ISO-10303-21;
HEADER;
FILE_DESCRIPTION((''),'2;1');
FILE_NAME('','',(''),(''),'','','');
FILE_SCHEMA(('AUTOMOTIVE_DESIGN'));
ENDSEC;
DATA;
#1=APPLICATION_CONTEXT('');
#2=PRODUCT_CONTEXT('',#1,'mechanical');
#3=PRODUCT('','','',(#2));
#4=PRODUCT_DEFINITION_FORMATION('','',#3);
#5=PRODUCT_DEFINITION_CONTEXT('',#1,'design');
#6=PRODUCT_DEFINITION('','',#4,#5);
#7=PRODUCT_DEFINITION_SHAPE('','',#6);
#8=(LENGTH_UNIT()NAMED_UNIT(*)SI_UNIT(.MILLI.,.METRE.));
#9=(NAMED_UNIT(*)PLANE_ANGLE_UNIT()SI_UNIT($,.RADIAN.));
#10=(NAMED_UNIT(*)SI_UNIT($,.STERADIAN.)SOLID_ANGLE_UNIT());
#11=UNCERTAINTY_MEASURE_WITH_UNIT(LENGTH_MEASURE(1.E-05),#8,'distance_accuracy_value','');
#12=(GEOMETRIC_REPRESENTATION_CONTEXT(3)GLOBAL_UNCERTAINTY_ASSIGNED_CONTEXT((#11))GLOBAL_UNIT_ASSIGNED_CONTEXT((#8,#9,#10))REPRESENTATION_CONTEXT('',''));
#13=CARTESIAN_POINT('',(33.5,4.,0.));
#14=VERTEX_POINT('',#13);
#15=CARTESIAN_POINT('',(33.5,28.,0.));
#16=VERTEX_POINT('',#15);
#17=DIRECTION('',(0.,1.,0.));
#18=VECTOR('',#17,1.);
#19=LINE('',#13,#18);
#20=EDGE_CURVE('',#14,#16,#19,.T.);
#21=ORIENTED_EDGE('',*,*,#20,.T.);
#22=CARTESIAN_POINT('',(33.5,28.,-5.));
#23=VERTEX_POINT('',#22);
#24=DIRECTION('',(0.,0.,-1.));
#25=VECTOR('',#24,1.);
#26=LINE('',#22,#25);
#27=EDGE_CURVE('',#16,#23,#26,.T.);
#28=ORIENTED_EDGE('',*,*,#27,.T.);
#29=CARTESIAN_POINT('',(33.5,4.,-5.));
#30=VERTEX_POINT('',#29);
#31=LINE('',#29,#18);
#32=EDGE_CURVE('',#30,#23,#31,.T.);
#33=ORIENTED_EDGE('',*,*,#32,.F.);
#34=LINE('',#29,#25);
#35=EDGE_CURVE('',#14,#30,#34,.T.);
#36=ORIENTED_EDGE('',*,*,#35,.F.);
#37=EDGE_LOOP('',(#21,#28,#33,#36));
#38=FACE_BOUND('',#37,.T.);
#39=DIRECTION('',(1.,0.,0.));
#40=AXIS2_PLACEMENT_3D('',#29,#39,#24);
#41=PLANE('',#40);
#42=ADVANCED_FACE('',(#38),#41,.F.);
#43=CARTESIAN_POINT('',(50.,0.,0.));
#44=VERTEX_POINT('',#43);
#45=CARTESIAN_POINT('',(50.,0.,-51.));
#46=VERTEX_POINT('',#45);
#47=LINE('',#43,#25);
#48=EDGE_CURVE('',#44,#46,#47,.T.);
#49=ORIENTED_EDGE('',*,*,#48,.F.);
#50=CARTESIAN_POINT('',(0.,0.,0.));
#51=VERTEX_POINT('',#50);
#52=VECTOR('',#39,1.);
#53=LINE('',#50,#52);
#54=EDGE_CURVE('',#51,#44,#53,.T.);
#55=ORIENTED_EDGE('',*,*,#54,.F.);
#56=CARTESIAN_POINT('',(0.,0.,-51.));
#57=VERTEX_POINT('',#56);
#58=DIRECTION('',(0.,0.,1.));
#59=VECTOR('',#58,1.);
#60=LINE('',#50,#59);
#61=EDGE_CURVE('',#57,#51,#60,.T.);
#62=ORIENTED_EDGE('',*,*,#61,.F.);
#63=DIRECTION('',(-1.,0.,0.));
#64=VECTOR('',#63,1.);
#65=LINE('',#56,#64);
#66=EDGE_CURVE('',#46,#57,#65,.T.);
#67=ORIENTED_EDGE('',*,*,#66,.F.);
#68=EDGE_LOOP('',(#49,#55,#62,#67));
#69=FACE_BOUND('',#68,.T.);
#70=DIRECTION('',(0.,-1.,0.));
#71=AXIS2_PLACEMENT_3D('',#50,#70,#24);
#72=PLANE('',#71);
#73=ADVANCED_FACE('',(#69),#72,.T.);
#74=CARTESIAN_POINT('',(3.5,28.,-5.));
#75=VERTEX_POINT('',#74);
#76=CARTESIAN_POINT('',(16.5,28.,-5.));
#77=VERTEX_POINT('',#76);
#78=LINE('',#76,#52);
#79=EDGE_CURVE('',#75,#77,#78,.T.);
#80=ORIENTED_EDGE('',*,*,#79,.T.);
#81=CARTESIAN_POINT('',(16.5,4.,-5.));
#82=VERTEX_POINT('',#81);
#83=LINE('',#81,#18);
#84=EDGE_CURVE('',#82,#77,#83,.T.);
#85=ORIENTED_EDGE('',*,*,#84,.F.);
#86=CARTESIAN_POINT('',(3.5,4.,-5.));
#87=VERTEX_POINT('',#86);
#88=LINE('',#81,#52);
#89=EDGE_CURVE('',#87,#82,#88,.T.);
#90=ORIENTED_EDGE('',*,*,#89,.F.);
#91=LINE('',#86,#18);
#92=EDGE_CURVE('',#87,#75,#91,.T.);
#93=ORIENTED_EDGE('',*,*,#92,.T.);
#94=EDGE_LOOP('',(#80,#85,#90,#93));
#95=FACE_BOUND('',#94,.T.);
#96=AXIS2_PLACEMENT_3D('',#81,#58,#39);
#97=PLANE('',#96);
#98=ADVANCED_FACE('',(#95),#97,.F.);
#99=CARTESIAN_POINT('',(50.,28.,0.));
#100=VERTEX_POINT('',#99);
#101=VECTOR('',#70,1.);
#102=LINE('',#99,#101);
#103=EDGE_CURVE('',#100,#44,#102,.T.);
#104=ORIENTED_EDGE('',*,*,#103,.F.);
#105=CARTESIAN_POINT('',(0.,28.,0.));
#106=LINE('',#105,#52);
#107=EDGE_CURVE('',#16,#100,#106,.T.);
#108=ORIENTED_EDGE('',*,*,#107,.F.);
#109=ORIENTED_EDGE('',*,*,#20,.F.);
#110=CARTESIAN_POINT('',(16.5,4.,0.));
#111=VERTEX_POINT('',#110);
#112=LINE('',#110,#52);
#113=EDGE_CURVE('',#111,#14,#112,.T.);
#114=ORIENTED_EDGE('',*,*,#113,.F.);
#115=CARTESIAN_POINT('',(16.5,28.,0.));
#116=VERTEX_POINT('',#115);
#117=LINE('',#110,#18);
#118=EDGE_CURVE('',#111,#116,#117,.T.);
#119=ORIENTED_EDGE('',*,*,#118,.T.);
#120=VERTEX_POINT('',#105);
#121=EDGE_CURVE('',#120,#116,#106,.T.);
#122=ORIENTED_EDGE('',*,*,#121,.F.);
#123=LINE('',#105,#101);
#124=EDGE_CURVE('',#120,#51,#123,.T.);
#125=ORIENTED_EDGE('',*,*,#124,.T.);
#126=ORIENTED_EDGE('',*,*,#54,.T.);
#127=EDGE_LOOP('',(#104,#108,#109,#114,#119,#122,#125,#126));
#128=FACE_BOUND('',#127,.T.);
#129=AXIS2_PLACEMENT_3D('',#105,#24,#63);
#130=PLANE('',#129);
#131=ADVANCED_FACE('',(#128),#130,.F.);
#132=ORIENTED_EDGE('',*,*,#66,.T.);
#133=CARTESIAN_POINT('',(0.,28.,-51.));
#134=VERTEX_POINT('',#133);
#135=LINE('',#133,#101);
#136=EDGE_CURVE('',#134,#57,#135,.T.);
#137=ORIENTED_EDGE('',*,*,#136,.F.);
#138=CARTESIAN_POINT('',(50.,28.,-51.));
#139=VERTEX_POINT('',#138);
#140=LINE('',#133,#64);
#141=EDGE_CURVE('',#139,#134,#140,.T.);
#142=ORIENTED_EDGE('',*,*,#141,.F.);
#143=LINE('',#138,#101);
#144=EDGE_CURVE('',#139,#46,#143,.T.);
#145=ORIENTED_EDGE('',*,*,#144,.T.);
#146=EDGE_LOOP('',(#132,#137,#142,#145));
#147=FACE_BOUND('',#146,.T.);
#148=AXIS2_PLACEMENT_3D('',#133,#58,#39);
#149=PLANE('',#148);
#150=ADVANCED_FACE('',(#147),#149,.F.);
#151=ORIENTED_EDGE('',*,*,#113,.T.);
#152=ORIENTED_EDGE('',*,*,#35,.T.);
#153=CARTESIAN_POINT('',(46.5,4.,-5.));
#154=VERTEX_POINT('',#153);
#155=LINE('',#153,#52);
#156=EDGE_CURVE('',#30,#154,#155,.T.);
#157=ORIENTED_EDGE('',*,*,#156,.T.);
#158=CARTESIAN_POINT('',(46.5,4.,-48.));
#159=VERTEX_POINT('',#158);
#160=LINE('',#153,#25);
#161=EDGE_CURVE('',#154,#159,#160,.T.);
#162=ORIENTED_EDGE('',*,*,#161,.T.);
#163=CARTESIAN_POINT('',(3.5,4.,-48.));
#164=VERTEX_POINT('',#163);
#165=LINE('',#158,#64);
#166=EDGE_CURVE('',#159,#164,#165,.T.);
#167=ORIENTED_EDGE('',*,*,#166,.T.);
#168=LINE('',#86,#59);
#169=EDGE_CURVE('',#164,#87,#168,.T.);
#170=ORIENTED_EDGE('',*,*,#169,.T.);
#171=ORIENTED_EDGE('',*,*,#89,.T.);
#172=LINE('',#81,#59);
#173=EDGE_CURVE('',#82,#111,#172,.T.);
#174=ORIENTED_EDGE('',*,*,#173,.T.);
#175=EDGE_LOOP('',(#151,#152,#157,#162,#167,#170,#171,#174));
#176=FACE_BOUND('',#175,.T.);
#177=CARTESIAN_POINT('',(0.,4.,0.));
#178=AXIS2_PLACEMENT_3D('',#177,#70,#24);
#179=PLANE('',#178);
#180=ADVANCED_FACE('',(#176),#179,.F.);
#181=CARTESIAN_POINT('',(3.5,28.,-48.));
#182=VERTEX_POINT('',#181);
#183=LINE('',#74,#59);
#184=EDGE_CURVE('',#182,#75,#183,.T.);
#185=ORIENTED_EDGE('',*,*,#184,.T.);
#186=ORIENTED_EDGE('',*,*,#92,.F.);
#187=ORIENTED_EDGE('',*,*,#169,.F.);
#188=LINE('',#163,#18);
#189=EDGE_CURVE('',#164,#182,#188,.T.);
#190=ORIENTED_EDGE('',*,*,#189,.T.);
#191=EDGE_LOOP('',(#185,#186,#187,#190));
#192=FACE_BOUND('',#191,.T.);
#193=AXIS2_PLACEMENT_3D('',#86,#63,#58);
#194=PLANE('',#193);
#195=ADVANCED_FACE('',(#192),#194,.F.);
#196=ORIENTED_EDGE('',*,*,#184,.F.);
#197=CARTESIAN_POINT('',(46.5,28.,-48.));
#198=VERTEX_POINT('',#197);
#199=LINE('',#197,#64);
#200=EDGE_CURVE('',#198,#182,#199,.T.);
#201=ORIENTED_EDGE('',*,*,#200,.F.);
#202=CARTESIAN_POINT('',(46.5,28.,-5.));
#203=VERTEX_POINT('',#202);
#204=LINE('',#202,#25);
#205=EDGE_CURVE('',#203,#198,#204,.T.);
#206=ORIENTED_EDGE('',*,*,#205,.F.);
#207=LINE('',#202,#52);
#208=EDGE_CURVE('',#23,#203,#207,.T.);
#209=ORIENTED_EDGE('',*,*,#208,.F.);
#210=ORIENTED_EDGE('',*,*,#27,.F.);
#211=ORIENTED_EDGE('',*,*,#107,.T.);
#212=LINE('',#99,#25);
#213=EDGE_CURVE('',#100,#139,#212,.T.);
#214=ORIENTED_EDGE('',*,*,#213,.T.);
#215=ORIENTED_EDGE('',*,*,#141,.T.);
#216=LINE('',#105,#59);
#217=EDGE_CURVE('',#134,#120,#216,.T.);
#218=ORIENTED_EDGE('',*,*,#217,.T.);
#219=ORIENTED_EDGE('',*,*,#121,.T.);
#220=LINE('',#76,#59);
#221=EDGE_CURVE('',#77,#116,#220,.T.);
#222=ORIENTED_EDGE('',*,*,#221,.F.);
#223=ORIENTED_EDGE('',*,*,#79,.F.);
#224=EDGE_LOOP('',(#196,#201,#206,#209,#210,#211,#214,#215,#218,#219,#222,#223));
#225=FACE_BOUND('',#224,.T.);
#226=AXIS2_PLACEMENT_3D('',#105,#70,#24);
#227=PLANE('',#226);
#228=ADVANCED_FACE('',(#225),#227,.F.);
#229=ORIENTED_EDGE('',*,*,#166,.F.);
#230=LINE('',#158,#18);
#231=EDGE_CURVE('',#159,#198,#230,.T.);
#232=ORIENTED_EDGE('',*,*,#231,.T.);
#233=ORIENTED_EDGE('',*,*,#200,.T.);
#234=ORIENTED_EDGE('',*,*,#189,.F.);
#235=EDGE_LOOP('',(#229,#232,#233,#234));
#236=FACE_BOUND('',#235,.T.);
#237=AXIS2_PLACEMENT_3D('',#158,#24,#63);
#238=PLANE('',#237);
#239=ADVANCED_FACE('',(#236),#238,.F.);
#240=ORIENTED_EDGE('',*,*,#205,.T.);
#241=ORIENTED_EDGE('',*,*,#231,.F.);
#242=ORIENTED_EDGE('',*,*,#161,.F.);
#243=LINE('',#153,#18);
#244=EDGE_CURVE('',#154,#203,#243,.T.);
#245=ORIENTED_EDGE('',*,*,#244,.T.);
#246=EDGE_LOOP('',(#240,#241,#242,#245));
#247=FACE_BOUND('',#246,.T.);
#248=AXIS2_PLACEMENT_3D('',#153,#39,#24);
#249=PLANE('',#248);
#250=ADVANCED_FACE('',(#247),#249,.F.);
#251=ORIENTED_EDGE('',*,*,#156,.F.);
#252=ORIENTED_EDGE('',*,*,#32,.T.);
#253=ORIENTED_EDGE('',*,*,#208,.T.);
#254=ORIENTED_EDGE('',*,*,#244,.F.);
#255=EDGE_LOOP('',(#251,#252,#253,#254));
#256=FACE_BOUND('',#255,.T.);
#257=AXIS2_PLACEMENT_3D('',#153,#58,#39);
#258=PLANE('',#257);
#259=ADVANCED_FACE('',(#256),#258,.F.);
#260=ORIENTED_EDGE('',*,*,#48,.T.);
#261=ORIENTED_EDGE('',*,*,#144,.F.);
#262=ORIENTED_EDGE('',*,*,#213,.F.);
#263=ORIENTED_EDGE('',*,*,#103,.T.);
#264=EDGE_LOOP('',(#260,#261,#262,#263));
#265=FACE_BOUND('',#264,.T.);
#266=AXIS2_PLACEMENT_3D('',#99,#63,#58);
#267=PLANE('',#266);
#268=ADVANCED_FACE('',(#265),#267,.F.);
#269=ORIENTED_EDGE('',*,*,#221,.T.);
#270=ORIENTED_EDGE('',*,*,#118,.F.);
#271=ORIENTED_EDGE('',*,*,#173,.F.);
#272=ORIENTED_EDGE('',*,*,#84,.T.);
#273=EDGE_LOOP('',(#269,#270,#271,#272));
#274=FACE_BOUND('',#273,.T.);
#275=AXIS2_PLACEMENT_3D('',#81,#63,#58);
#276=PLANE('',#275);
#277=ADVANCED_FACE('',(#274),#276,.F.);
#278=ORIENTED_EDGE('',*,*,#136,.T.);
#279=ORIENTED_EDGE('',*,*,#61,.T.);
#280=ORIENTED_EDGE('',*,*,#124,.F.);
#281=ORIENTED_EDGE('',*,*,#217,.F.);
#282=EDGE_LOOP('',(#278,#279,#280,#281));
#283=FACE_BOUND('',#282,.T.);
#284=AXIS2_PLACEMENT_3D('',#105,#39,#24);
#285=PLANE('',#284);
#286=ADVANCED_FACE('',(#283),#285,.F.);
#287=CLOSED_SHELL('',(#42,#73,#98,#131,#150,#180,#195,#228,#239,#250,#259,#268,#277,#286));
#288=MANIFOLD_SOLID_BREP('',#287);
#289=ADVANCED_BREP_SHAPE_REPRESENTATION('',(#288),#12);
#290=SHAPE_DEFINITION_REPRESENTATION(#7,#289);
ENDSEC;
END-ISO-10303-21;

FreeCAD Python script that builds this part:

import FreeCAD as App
import Part
import Sketcher
from FreeCAD import Vector


def add_polygon(sketch, points):
    """Adds a closed chain of lines whose ends are joined by coincident constraints."""
    first, n = sketch.GeometryCount, len(points)
    for a, b in zip(points, points[1:] + points[:1]):
        sketch.addGeometry(Part.LineSegment(App.Vector(*a, 0), App.Vector(*b, 0)), False)
    for i in range(n):
        sketch.addConstraint(Sketcher.Constraint("Coincident", first + i, 2, first + (i + 1) % n, 1))

doc = App.newDocument("Part")
body = doc.addObject("PartDesign::Body", "Body")

# Sketch on XZ plane
sketch1 = body.newObject("Sketcher::SketchObject", "Sketch")
sketch1.AttachmentSupport = (doc.getObject("XZ_Plane"), [""])
sketch1.MapMode = "FlatFace"
add_polygon(sketch1, [(0, -51), (0, 0), (50, 0), (50, -51)])  # lines 0-3
sketch1.addConstraint([
    Sketcher.Constraint("Vertical", 0),
    Sketcher.Constraint("Horizontal", 1),
    Sketcher.Constraint("Vertical", 2),
    Sketcher.Constraint("Horizontal", 3),
    Sketcher.Constraint("Coincident", 0, 2, -1, 1),
    Sketcher.Constraint("DistanceX", 1, 1, 1, 2, 50.0),
    Sketcher.Constraint("DistanceY", 0, 1, 0, 2, 51.0),
])
pad1 = body.newObject("PartDesign::Pad", "Pad")
pad1.Profile = sketch1
pad1.Length = 28
pad1.Reversed = True

# Sketch on XZ plane
sketch2 = body.newObject("Sketcher::SketchObject", "Sketch001")
sketch2.AttachmentSupport = (doc.getObject("XZ_Plane"), [""])
sketch2.MapMode = "FlatFace"
sketch2.AttachmentOffset = App.Placement(Vector(0, 0, -28), App.Rotation())
add_polygon(sketch2, [(16, -5), (16, 0), (34, 0), (34, -5), (46, -5), (46, -48), (4, -48), (4, -5)])  # lines 0-7
sketch2.addConstraint([
    Sketcher.Constraint("Vertical", 0),
    Sketcher.Constraint("Horizontal", 1),
    Sketcher.Constraint("Vertical", 2),
    Sketcher.Constraint("Horizontal", 3),
    Sketcher.Constraint("Vertical", 4),
    Sketcher.Constraint("Horizontal", 5),
    Sketcher.Constraint("Vertical", 6),
    Sketcher.Constraint("Horizontal", 7),
    Sketcher.Constraint("PointOnObject", 0, 2, -1),
    Sketcher.Constraint("Horizontal", 3, 2, 6, 2),
    Sketcher.Constraint("Equal", 3, 7),
    Sketcher.Constraint("Equal", 5, 4),
    Sketcher.Constraint("DistanceX", 1, 1, 1, 2, 17.0),
    Sketcher.Constraint("DistanceX", 3, 1, 3, 2, 13.0),
    Sketcher.Constraint("DistanceY", 0, 1, 0, 2, 5.0),
    Sketcher.Constraint("DistanceX", -1, 1, 0, 2, 16.5),
])
pocket1 = body.newObject("PartDesign::Pocket", "Pocket")
pocket1.Profile = sketch2
pocket1.Length = 24
pocket1.Reversed = True

doc.recompute()
